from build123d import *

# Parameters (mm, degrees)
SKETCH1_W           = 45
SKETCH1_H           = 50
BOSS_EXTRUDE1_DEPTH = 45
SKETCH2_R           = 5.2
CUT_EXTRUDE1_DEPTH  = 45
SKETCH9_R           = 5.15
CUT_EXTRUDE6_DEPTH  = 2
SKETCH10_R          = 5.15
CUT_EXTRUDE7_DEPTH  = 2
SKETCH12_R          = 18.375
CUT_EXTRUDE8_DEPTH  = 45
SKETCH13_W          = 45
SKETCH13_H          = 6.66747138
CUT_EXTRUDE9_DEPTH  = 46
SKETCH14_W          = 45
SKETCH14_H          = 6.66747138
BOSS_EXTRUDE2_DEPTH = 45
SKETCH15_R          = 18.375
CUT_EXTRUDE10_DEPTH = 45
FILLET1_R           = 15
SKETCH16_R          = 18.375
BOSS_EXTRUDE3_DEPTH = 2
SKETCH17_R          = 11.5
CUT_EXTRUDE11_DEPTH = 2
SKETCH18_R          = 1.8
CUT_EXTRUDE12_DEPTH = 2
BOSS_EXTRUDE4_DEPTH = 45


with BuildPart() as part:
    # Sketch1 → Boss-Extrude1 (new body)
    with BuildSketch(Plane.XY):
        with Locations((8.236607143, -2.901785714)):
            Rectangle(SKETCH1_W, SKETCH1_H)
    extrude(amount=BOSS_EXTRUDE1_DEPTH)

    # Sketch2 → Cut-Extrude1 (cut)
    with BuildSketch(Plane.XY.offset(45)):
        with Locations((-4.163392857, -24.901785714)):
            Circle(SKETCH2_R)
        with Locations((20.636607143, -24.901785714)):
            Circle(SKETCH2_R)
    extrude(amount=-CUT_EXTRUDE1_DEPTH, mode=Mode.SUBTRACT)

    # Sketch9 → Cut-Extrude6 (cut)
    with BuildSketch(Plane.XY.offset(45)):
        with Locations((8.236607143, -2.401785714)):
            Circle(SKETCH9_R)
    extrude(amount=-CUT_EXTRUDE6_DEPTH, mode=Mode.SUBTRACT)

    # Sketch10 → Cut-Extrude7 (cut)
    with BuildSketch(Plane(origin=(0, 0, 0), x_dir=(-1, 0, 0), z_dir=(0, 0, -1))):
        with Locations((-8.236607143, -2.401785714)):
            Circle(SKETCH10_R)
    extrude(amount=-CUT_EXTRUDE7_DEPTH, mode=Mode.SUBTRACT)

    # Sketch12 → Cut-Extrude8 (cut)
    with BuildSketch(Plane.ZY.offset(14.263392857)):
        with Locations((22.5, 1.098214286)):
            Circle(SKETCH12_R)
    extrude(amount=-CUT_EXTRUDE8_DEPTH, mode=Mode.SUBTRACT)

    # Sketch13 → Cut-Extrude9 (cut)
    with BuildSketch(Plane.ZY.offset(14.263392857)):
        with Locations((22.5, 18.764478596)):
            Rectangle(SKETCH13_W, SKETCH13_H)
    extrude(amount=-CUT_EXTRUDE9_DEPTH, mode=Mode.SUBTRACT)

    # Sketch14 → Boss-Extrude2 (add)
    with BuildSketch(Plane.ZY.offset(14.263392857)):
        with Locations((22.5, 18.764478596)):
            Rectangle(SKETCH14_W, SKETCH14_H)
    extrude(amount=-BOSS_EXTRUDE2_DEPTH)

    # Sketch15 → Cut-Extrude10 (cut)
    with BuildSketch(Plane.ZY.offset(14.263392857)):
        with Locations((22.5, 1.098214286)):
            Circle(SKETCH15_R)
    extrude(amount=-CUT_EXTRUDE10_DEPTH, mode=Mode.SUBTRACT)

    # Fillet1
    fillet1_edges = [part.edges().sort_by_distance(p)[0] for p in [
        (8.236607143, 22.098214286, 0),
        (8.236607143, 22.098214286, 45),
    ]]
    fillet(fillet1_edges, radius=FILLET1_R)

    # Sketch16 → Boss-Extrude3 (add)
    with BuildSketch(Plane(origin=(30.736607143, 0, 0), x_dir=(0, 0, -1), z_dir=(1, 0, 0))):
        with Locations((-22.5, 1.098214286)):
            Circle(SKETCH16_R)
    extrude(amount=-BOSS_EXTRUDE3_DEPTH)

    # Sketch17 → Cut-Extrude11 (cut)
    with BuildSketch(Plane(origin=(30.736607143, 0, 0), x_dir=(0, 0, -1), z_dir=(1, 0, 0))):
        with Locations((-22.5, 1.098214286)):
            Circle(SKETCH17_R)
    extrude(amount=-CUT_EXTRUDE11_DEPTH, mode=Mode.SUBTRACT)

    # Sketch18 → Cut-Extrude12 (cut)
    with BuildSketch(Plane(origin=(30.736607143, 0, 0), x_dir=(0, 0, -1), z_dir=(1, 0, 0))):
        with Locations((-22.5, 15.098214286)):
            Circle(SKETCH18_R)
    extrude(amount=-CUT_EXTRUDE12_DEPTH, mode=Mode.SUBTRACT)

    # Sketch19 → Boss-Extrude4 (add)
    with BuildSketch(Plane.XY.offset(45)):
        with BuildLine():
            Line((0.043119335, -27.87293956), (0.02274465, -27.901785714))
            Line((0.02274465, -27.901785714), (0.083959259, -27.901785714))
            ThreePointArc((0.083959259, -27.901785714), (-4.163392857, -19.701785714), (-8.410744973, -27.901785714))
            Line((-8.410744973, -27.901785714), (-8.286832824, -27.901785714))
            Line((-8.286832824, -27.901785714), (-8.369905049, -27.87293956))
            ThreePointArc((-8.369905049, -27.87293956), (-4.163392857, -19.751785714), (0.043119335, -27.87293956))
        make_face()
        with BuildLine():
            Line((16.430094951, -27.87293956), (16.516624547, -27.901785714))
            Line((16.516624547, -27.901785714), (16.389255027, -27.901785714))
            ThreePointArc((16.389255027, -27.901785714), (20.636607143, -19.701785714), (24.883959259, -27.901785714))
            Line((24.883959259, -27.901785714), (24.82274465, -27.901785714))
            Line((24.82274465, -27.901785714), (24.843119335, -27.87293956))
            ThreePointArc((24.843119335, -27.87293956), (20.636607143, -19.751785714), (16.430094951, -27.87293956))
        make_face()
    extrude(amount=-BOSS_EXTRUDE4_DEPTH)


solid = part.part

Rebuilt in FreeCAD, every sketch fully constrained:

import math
import FreeCAD as App
import Part
import Sketcher

V = App.Vector
Q = App.Units.Quantity


def edges_at(feature, points):
    """Names of the edges that pass closest to the given points."""
    edges = feature.Shape.Edges
    near = lambda p: min(range(len(edges)), key=lambda i: edges[i].distToShape(Part.Vertex(*p))[0])
    return sorted({f"Edge{near(p) + 1}" for p in points})


def add_polygon(sketch, points):
    """Adds a closed chain of lines whose ends are joined by coincident constraints."""
    first, n = sketch.GeometryCount, len(points)
    for a, b in zip(points, points[1:] + points[:1]):
        sketch.addGeometry(Part.LineSegment(App.Vector(*a, 0), App.Vector(*b, 0)), False)
    for i in range(n):
        sketch.addConstraint(Sketcher.Constraint("Coincident", first + i, 2, first + (i + 1) % n, 1))

doc = App.newDocument("Part")
params = doc.addObject("Spreadsheet::Sheet", "Params")
for row, (alias, value) in enumerate([
    ("sketch1_width", "45 mm"),
    ("sketch1_height", "50 mm"),
    ("pad1_length", "45 mm"),
    ("sketch2_diameter", "10.4 mm"),
    ("pocket1_length", "45 mm"),
    ("sketch3_diameter", "10.3 mm"),
    ("pocket2_length", "2 mm"),
    ("sketch4_diameter", "10.3 mm"),
    ("pocket3_length", "2 mm"),
    ("sketch5_diameter", "36.75 mm"),
    ("pocket4_length", "45 mm"),
    ("sketch6_height", "45 mm"),
    ("pocket5_length", "46 mm"),
    ("sketch7_height", "45 mm"),
    ("pad2_length", "45 mm"),
    ("sketch8_diameter", "36.75 mm"),
    ("pocket6_length", "45 mm"),
    ("fillet_radius", "15 mm"),
    ("sketch9_diameter", "36.75 mm"),
    ("pad3_length", "2 mm"),
    ("sketch10_diameter", "23 mm"),
    ("pocket7_length", "2 mm"),
    ("sketch11_diameter", "3.6 mm"),
    ("pocket8_length", "2 mm"),
    ("sketch12_radius", "5.2 mm"),
    ("sketch12_radius2", "5.15 mm"),
    ("pad4_length", "45 mm"),
], start=1):
    params.set(f"A{row}", alias)
    params.set(f"B{row}", "=" + value)
    params.setAlias(f"B{row}", alias)

body = doc.addObject("PartDesign::Body", "Body")

sketch1 = body.newObject("Sketcher::SketchObject", "Sketch")
sketch1.AttachmentSupport = (doc.getObject("XY_Plane"), [""])
sketch1.MapMode = "FlatFace"
add_polygon(sketch1, [(-14, 22), (-14, -28), (31, -28), (31, 22)])
sketch1.addConstraint([
    Sketcher.Constraint("Vertical", 0),
    Sketcher.Constraint("Horizontal", 1),
    Sketcher.Constraint("Vertical", 2),
    Sketcher.Constraint("Horizontal", 3),
    Sketcher.Constraint("DistanceX", 1, 1, 1, 2, Q("45 mm")),
    Sketcher.Constraint("DistanceY", 0, 2, 0, 1, Q("50 mm")),
    Sketcher.Constraint("DistanceX", 0, 2, -1, 1, Q("14.263393 mm")),
    Sketcher.Constraint("DistanceY", 0, 2, -1, 1, Q("27.901786 mm")),
])
sketch1.setExpression("Constraints[8]", "Params.sketch1_width")
sketch1.setExpression("Constraints[9]", "Params.sketch1_height")
pad1 = body.newObject("PartDesign::Pad", "Pad")
pad1.Profile = sketch1
pad1.setExpression("Length", "Params.pad1_length")

sketch2 = body.newObject("Sketcher::SketchObject", "Sketch001")
sketch2.AttachmentSupport = (doc.getObject("XY_Plane"), [""])
sketch2.MapMode = "FlatFace"
sketch2.AttachmentOffset = App.Placement(V(0, 0, 45), App.Rotation())
sketch2.addGeometry([
    Part.Circle(V(-4, -25, 0), V(0, 0, 1), 5),
    Part.Circle(V(21, -25, 0), V(0, 0, 1), 5),
], False)
sketch2.addConstraint([
    Sketcher.Constraint("Equal", 0, 1),
    Sketcher.Constraint("Horizontal", 0, 3, 1, 3),
    Sketcher.Constraint("Diameter", 0, Q("10.4 mm")),
    Sketcher.Constraint("DistanceX", 0, 3, 1, 3, Q("24.8 mm")),
    Sketcher.Constraint("DistanceX", 0, 3, -1, 1, Q("4.163393 mm")),
    Sketcher.Constraint("DistanceY", 0, 3, -1, 1, Q("24.901786 mm")),
])
sketch2.setExpression("Constraints[2]", "Params.sketch2_diameter")
pocket1 = body.newObject("PartDesign::Pocket", "Pocket")
pocket1.Profile = sketch2
pocket1.setExpression("Length", "Params.pocket1_length")

sketch3 = body.newObject("Sketcher::SketchObject", "Sketch002")
sketch3.AttachmentSupport = (doc.getObject("XY_Plane"), [""])
sketch3.MapMode = "FlatFace"
sketch3.AttachmentOffset = App.Placement(V(0, 0, 45), App.Rotation())
sketch3.addGeometry(Part.Circle(V(8, -2, 0), V(0, 0, 1), 5), False)
sketch3.addConstraint([
    Sketcher.Constraint("Diameter", 0, Q("10.3 mm")),
    Sketcher.Constraint("DistanceX", -1, 1, 0, 3, Q("8.236607 mm")),
    Sketcher.Constraint("DistanceY", 0, 3, -1, 1, Q("2.401786 mm")),
])
sketch3.setExpression("Constraints[0]", "Params.sketch3_diameter")
pocket2 = body.newObject("PartDesign::Pocket", "Pocket001")
pocket2.Profile = sketch3
pocket2.setExpression("Length", "Params.pocket2_length")

sketch4 = body.newObject("Sketcher::SketchObject", "Sketch003")
sketch4.AttachmentSupport = (doc.getObject("XY_Plane"), [""])
sketch4.MapMode = "FlatFace"
sketch4.addGeometry(Part.Circle(V(8, -2, 0), V(0, 0, 1), 5), False)
sketch4.addConstraint([
    Sketcher.Constraint("Diameter", 0, Q("10.3 mm")),
    Sketcher.Constraint("DistanceX", -1, 1, 0, 3, Q("8.236607 mm")),
    Sketcher.Constraint("DistanceY", 0, 3, -1, 1, Q("2.401786 mm")),
])
sketch4.setExpression("Constraints[0]", "Params.sketch4_diameter")
pocket3 = body.newObject("PartDesign::Pocket", "Pocket002")
pocket3.Profile = sketch4
pocket3.setExpression("Length", "Params.pocket3_length")
pocket3.Reversed = True

sketch5 = body.newObject("Sketcher::SketchObject", "Sketch004")
sketch5.AttachmentSupport = (doc.getObject("YZ_Plane"), [""])
sketch5.MapMode = "FlatFace"
sketch5.AttachmentOffset = App.Placement(V(0, 0, -14.263393), App.Rotation())
sketch5.addGeometry(Part.Circle(V(1, 22, 0), V(0, 0, 1), 18), False)
sketch5.addConstraint([
    Sketcher.Constraint("Diameter", 0, Q("36.75 mm")),
    Sketcher.Constraint("DistanceY", -1, 1, 0, 3, Q("22.5 mm")),
    Sketcher.Constraint("DistanceX", -1, 1, 0, 3, Q("1.098214 mm")),
])
sketch5.setExpression("Constraints[0]", "Params.sketch5_diameter")
pocket4 = body.newObject("PartDesign::Pocket", "Pocket003")
pocket4.Profile = sketch5
pocket4.setExpression("Length", "Params.pocket4_length")
pocket4.Reversed = True

sketch6 = body.newObject("Sketcher::SketchObject", "Sketch005")
sketch6.AttachmentSupport = (doc.getObject("YZ_Plane"), [""])
sketch6.MapMode = "FlatFace"
sketch6.AttachmentOffset = App.Placement(V(0, 0, -14.263393), App.Rotation())
add_polygon(sketch6, [(22, 0), (15, 0), (15, 45), (22, 45)])
sketch6.addConstraint([
    Sketcher.Constraint("Horizontal", 0),
    Sketcher.Constraint("Vertical", 1),
    Sketcher.Constraint("Horizontal", 2),
    Sketcher.Constraint("Vertical", 3),
    Sketcher.Constraint("PointOnObject", 0, 2, -1),
    Sketcher.Constraint("DistanceY", 1, 1, 1, 2, Q("45 mm")),
    Sketcher.Constraint("DistanceX", 0, 2, 0, 1, Q("6.667471 mm")),
    Sketcher.Constraint("DistanceX", -1, 1, 0, 2, Q("15.430743 mm")),
])
sketch6.setExpression("Constraints[9]", "Params.sketch6_height")
pocket5 = body.newObject("PartDesign::Pocket", "Pocket004")
pocket5.Profile = sketch6
pocket5.setExpression("Length", "Params.pocket5_length")
pocket5.Reversed = True

sketch7 = body.newObject("Sketcher::SketchObject", "Sketch006")
sketch7.AttachmentSupport = (doc.getObject("YZ_Plane"), [""])
sketch7.MapMode = "FlatFace"
sketch7.AttachmentOffset = App.Placement(V(0, 0, -14.263393), App.Rotation())
add_polygon(sketch7, [(22, 0), (15, 0), (15, 45), (22, 45)])
sketch7.addConstraint([
    Sketcher.Constraint("Horizontal", 0),
    Sketcher.Constraint("Vertical", 1),
    Sketcher.Constraint("Horizontal", 2),
    Sketcher.Constraint("Vertical", 3),
    Sketcher.Constraint("PointOnObject", 0, 2, -1),
    Sketcher.Constraint("DistanceY", 1, 1, 1, 2, Q("45 mm")),
    Sketcher.Constraint("DistanceX", 0, 2, 0, 1, Q("6.667471 mm")),
    Sketcher.Constraint("DistanceX", -1, 1, 0, 2, Q("15.430743 mm")),
])
sketch7.setExpression("Constraints[9]", "Params.sketch7_height")
pad2 = body.newObject("PartDesign::Pad", "Pad001")
pad2.Profile = sketch7
pad2.setExpression("Length", "Params.pad2_length")

sketch8 = body.newObject("Sketcher::SketchObject", "Sketch007")
sketch8.AttachmentSupport = (doc.getObject("YZ_Plane"), [""])
sketch8.MapMode = "FlatFace"
sketch8.AttachmentOffset = App.Placement(V(0, 0, -14.263393), App.Rotation())
sketch8.addGeometry(Part.Circle(V(1, 22, 0), V(0, 0, 1), 18), False)
sketch8.addConstraint([
    Sketcher.Constraint("Diameter", 0, Q("36.75 mm")),
    Sketcher.Constraint("DistanceY", -1, 1, 0, 3, Q("22.5 mm")),
    Sketcher.Constraint("DistanceX", -1, 1, 0, 3, Q("1.098214 mm")),
])
sketch8.setExpression("Constraints[0]", "Params.sketch8_diameter")
pocket6 = body.newObject("PartDesign::Pocket", "Pocket005")
pocket6.Profile = sketch8
pocket6.setExpression("Length", "Params.pocket6_length")
pocket6.Reversed = True
doc.recompute()

fillet = body.newObject("PartDesign::Fillet", "Fillet")
fillet.Base = (pocket6, edges_at(pocket6, [(8.237, 22.098, 0), (8.237, 22.098, 45)]))
fillet.setExpression("Radius", "Params.fillet_radius")

sketch9 = body.newObject("Sketcher::SketchObject", "Sketch008")
sketch9.AttachmentSupport = (doc.getObject("YZ_Plane"), [""])
sketch9.MapMode = "FlatFace"
sketch9.AttachmentOffset = App.Placement(V(0, 0, 30.736607), App.Rotation())
sketch9.addGeometry(Part.Circle(V(1, 22, 0), V(0, 0, 1), 18), False)
sketch9.addConstraint([
    Sketcher.Constraint("Diameter", 0, Q("36.75 mm")),
    Sketcher.Constraint("DistanceY", -1, 1, 0, 3, Q("22.5 mm")),
    Sketcher.Constraint("DistanceX", -1, 1, 0, 3, Q("1.098214 mm")),
])
sketch9.setExpression("Constraints[0]", "Params.sketch9_diameter")
pad3 = body.newObject("PartDesign::Pad", "Pad002")
pad3.Profile = sketch9
pad3.setExpression("Length", "Params.pad3_length")
pad3.Reversed = True

sketch10 = body.newObject("Sketcher::SketchObject", "Sketch009")
sketch10.AttachmentSupport = (doc.getObject("YZ_Plane"), [""])
sketch10.MapMode = "FlatFace"
sketch10.AttachmentOffset = App.Placement(V(0, 0, 30.736607), App.Rotation())
sketch10.addGeometry(Part.Circle(V(1, 22, 0), V(0, 0, 1), 12), False)
sketch10.addConstraint([
    Sketcher.Constraint("Diameter", 0, Q("23 mm")),
    Sketcher.Constraint("DistanceY", -1, 1, 0, 3, Q("22.5 mm")),
    Sketcher.Constraint("DistanceX", -1, 1, 0, 3, Q("1.098214 mm")),
])
sketch10.setExpression("Constraints[0]", "Params.sketch10_diameter")
pocket7 = body.newObject("PartDesign::Pocket", "Pocket006")
pocket7.Profile = sketch10
pocket7.setExpression("Length", "Params.pocket7_length")

sketch11 = body.newObject("Sketcher::SketchObject", "Sketch010")
sketch11.AttachmentSupport = (doc.getObject("YZ_Plane"), [""])
sketch11.MapMode = "FlatFace"
sketch11.AttachmentOffset = App.Placement(V(0, 0, 30.736607), App.Rotation())
sketch11.addGeometry(Part.Circle(V(15.1, 22.5, 0), V(0, 0, 1), 1.8), False)
sketch11.addConstraint([
    Sketcher.Constraint("Diameter", 0, Q("3.6 mm")),
    Sketcher.Constraint("DistanceY", -1, 1, 0, 3, Q("22.5 mm")),
    Sketcher.Constraint("DistanceX", -1, 1, 0, 3, Q("15.098214 mm")),
])
sketch11.setExpression("Constraints[0]", "Params.sketch11_diameter")
pocket8 = body.newObject("PartDesign::Pocket", "Pocket007")
pocket8.Profile = sketch11
pocket8.setExpression("Length", "Params.pocket8_length")

sketch12 = body.newObject("Sketcher::SketchObject", "Sketch011")
sketch12.AttachmentSupport = (doc.getObject("XY_Plane"), [""])
sketch12.MapMode = "FlatFace"
sketch12.AttachmentOffset = App.Placement(V(0, 0, 45), App.Rotation())
sketch12.addGeometry([
    Part.LineSegment(V(0.043, -27.873, 0), V(0.023, -27.902, 0)),
    Part.LineSegment(V(0.023, -27.902, 0), V(0.084, -27.902, 0)),
    Part.ArcOfCircle(Part.Circle(V(-4.163, -24.902, 0), V(0, 0, 1), 5.2), math.radians(-35), math.radians(215)),
    Part.LineSegment(V(-8.411, -27.902, 0), V(-8.287, -27.902, 0)),
    Part.LineSegment(V(-8.287, -27.902, 0), V(-8.37, -27.873, 0)),
    Part.ArcOfCircle(Part.Circle(V(-4.163, -24.902, 0), V(0, 0, 1), 5.15), math.radians(-35), math.radians(215)),
    Part.LineSegment(V(16.517, -27.902, 0), V(16.43, -27.873, 0)),
    Part.ArcOfCircle(Part.Circle(V(20.637, -24.902, 0), V(0, 0, 1), 5.15), math.radians(-35), math.radians(215)),
    Part.LineSegment(V(24.843, -27.873, 0), V(24.823, -27.902, 0)),
    Part.LineSegment(V(24.823, -27.902, 0), V(24.884, -27.902, 0)),
    Part.ArcOfCircle(Part.Circle(V(20.637, -24.902, 0), V(0, 0, 1), 5.2), math.radians(-35), math.radians(215)),
    Part.LineSegment(V(16.389, -27.902, 0), V(16.517, -27.902, 0)),
], False)
sketch12.addConstraint([
    Sketcher.Constraint("Coincident", 0, 2, 1, 1),
    Sketcher.Constraint("Coincident", 1, 2, 2, 1),
    Sketcher.Constraint("Coincident", 2, 2, 3, 1),
    Sketcher.Constraint("Coincident", 3, 2, 4, 1),
    Sketcher.Constraint("Coincident", 4, 2, 5, 2),
    Sketcher.Constraint("Tangent", 5, 1, 0, 1),
    Sketcher.Constraint("Coincident", 6, 2, 7, 2),
    Sketcher.Constraint("Tangent", 7, 1, 8, 1),
    Sketcher.Constraint("Coincident", 8, 2, 9, 1),
    Sketcher.Constraint("Coincident", 9, 2, 10, 1),
    Sketcher.Constraint("Coincident", 10, 2, 11, 1),
    Sketcher.Constraint("Coincident", 11, 2, 6, 1),
    Sketcher.Constraint("Horizontal", 1),
    Sketcher.Constraint("Horizontal", 3),
    Sketcher.Constraint("Horizontal", 9),
    Sketcher.Constraint("Horizontal", 11),
    Sketcher.Constraint("Coincident", 5, 3, 2, 3),
    Sketcher.Constraint("Coincident", 10, 3, 7, 3),
    Sketcher.Constraint("Equal", 5, 7),
    Sketcher.Constraint("Equal", 2, 10),
    Sketcher.Constraint("Parallel", 0, 8),
    Sketcher.Constraint("Horizontal", 5, 3, 7, 3),
    Sketcher.Constraint("Horizontal", 1, 2, 2, 2),
    Sketcher.Constraint("Horizontal", 4, 2, 5, 1),
    Sketcher.Constraint("Horizontal", 5, 1, 6, 2),
    Sketcher.Constraint("Horizontal", 3, 2, 8, 2),
    Sketcher.Constraint("Horizontal", 9, 2, 10, 2),
    Sketcher.Constraint("Radius", 2, Q("5.2 mm")),
    Sketcher.Constraint("Radius", 5, Q("5.15 mm")),
    Sketcher.Constraint("DistanceY", 0, 2, 2, 3, Q("3 mm")),
    Sketcher.Constraint("DistanceX", 2, 3, 7, 3, Q("24.8 mm")),
    Sketcher.Constraint("DistanceX", 11, 1, 11, 2, Q("0.12737 mm")),
    Sketcher.Constraint("Distance", 4, Q("0.087938 mm")),
    Sketcher.Constraint("Distance", 6, Q("0.091211 mm")),
    Sketcher.Constraint("DistanceX", -1, 1, 1, 2, Q("0.083959 mm")),
    Sketcher.Constraint("DistanceY", 4, 2, -1, 1, Q("27.87294 mm")),
])
sketch12.setExpression("Constraints[27]", "Params.sketch12_radius")
sketch12.setExpression("Constraints[28]", "Params.sketch12_radius2")
pad4 = body.newObject("PartDesign::Pad", "Pad003")
pad4.Profile = sketch12
pad4.setExpression("Length", "Params.pad4_length")
pad4.Reversed = True

doc.recompute()
